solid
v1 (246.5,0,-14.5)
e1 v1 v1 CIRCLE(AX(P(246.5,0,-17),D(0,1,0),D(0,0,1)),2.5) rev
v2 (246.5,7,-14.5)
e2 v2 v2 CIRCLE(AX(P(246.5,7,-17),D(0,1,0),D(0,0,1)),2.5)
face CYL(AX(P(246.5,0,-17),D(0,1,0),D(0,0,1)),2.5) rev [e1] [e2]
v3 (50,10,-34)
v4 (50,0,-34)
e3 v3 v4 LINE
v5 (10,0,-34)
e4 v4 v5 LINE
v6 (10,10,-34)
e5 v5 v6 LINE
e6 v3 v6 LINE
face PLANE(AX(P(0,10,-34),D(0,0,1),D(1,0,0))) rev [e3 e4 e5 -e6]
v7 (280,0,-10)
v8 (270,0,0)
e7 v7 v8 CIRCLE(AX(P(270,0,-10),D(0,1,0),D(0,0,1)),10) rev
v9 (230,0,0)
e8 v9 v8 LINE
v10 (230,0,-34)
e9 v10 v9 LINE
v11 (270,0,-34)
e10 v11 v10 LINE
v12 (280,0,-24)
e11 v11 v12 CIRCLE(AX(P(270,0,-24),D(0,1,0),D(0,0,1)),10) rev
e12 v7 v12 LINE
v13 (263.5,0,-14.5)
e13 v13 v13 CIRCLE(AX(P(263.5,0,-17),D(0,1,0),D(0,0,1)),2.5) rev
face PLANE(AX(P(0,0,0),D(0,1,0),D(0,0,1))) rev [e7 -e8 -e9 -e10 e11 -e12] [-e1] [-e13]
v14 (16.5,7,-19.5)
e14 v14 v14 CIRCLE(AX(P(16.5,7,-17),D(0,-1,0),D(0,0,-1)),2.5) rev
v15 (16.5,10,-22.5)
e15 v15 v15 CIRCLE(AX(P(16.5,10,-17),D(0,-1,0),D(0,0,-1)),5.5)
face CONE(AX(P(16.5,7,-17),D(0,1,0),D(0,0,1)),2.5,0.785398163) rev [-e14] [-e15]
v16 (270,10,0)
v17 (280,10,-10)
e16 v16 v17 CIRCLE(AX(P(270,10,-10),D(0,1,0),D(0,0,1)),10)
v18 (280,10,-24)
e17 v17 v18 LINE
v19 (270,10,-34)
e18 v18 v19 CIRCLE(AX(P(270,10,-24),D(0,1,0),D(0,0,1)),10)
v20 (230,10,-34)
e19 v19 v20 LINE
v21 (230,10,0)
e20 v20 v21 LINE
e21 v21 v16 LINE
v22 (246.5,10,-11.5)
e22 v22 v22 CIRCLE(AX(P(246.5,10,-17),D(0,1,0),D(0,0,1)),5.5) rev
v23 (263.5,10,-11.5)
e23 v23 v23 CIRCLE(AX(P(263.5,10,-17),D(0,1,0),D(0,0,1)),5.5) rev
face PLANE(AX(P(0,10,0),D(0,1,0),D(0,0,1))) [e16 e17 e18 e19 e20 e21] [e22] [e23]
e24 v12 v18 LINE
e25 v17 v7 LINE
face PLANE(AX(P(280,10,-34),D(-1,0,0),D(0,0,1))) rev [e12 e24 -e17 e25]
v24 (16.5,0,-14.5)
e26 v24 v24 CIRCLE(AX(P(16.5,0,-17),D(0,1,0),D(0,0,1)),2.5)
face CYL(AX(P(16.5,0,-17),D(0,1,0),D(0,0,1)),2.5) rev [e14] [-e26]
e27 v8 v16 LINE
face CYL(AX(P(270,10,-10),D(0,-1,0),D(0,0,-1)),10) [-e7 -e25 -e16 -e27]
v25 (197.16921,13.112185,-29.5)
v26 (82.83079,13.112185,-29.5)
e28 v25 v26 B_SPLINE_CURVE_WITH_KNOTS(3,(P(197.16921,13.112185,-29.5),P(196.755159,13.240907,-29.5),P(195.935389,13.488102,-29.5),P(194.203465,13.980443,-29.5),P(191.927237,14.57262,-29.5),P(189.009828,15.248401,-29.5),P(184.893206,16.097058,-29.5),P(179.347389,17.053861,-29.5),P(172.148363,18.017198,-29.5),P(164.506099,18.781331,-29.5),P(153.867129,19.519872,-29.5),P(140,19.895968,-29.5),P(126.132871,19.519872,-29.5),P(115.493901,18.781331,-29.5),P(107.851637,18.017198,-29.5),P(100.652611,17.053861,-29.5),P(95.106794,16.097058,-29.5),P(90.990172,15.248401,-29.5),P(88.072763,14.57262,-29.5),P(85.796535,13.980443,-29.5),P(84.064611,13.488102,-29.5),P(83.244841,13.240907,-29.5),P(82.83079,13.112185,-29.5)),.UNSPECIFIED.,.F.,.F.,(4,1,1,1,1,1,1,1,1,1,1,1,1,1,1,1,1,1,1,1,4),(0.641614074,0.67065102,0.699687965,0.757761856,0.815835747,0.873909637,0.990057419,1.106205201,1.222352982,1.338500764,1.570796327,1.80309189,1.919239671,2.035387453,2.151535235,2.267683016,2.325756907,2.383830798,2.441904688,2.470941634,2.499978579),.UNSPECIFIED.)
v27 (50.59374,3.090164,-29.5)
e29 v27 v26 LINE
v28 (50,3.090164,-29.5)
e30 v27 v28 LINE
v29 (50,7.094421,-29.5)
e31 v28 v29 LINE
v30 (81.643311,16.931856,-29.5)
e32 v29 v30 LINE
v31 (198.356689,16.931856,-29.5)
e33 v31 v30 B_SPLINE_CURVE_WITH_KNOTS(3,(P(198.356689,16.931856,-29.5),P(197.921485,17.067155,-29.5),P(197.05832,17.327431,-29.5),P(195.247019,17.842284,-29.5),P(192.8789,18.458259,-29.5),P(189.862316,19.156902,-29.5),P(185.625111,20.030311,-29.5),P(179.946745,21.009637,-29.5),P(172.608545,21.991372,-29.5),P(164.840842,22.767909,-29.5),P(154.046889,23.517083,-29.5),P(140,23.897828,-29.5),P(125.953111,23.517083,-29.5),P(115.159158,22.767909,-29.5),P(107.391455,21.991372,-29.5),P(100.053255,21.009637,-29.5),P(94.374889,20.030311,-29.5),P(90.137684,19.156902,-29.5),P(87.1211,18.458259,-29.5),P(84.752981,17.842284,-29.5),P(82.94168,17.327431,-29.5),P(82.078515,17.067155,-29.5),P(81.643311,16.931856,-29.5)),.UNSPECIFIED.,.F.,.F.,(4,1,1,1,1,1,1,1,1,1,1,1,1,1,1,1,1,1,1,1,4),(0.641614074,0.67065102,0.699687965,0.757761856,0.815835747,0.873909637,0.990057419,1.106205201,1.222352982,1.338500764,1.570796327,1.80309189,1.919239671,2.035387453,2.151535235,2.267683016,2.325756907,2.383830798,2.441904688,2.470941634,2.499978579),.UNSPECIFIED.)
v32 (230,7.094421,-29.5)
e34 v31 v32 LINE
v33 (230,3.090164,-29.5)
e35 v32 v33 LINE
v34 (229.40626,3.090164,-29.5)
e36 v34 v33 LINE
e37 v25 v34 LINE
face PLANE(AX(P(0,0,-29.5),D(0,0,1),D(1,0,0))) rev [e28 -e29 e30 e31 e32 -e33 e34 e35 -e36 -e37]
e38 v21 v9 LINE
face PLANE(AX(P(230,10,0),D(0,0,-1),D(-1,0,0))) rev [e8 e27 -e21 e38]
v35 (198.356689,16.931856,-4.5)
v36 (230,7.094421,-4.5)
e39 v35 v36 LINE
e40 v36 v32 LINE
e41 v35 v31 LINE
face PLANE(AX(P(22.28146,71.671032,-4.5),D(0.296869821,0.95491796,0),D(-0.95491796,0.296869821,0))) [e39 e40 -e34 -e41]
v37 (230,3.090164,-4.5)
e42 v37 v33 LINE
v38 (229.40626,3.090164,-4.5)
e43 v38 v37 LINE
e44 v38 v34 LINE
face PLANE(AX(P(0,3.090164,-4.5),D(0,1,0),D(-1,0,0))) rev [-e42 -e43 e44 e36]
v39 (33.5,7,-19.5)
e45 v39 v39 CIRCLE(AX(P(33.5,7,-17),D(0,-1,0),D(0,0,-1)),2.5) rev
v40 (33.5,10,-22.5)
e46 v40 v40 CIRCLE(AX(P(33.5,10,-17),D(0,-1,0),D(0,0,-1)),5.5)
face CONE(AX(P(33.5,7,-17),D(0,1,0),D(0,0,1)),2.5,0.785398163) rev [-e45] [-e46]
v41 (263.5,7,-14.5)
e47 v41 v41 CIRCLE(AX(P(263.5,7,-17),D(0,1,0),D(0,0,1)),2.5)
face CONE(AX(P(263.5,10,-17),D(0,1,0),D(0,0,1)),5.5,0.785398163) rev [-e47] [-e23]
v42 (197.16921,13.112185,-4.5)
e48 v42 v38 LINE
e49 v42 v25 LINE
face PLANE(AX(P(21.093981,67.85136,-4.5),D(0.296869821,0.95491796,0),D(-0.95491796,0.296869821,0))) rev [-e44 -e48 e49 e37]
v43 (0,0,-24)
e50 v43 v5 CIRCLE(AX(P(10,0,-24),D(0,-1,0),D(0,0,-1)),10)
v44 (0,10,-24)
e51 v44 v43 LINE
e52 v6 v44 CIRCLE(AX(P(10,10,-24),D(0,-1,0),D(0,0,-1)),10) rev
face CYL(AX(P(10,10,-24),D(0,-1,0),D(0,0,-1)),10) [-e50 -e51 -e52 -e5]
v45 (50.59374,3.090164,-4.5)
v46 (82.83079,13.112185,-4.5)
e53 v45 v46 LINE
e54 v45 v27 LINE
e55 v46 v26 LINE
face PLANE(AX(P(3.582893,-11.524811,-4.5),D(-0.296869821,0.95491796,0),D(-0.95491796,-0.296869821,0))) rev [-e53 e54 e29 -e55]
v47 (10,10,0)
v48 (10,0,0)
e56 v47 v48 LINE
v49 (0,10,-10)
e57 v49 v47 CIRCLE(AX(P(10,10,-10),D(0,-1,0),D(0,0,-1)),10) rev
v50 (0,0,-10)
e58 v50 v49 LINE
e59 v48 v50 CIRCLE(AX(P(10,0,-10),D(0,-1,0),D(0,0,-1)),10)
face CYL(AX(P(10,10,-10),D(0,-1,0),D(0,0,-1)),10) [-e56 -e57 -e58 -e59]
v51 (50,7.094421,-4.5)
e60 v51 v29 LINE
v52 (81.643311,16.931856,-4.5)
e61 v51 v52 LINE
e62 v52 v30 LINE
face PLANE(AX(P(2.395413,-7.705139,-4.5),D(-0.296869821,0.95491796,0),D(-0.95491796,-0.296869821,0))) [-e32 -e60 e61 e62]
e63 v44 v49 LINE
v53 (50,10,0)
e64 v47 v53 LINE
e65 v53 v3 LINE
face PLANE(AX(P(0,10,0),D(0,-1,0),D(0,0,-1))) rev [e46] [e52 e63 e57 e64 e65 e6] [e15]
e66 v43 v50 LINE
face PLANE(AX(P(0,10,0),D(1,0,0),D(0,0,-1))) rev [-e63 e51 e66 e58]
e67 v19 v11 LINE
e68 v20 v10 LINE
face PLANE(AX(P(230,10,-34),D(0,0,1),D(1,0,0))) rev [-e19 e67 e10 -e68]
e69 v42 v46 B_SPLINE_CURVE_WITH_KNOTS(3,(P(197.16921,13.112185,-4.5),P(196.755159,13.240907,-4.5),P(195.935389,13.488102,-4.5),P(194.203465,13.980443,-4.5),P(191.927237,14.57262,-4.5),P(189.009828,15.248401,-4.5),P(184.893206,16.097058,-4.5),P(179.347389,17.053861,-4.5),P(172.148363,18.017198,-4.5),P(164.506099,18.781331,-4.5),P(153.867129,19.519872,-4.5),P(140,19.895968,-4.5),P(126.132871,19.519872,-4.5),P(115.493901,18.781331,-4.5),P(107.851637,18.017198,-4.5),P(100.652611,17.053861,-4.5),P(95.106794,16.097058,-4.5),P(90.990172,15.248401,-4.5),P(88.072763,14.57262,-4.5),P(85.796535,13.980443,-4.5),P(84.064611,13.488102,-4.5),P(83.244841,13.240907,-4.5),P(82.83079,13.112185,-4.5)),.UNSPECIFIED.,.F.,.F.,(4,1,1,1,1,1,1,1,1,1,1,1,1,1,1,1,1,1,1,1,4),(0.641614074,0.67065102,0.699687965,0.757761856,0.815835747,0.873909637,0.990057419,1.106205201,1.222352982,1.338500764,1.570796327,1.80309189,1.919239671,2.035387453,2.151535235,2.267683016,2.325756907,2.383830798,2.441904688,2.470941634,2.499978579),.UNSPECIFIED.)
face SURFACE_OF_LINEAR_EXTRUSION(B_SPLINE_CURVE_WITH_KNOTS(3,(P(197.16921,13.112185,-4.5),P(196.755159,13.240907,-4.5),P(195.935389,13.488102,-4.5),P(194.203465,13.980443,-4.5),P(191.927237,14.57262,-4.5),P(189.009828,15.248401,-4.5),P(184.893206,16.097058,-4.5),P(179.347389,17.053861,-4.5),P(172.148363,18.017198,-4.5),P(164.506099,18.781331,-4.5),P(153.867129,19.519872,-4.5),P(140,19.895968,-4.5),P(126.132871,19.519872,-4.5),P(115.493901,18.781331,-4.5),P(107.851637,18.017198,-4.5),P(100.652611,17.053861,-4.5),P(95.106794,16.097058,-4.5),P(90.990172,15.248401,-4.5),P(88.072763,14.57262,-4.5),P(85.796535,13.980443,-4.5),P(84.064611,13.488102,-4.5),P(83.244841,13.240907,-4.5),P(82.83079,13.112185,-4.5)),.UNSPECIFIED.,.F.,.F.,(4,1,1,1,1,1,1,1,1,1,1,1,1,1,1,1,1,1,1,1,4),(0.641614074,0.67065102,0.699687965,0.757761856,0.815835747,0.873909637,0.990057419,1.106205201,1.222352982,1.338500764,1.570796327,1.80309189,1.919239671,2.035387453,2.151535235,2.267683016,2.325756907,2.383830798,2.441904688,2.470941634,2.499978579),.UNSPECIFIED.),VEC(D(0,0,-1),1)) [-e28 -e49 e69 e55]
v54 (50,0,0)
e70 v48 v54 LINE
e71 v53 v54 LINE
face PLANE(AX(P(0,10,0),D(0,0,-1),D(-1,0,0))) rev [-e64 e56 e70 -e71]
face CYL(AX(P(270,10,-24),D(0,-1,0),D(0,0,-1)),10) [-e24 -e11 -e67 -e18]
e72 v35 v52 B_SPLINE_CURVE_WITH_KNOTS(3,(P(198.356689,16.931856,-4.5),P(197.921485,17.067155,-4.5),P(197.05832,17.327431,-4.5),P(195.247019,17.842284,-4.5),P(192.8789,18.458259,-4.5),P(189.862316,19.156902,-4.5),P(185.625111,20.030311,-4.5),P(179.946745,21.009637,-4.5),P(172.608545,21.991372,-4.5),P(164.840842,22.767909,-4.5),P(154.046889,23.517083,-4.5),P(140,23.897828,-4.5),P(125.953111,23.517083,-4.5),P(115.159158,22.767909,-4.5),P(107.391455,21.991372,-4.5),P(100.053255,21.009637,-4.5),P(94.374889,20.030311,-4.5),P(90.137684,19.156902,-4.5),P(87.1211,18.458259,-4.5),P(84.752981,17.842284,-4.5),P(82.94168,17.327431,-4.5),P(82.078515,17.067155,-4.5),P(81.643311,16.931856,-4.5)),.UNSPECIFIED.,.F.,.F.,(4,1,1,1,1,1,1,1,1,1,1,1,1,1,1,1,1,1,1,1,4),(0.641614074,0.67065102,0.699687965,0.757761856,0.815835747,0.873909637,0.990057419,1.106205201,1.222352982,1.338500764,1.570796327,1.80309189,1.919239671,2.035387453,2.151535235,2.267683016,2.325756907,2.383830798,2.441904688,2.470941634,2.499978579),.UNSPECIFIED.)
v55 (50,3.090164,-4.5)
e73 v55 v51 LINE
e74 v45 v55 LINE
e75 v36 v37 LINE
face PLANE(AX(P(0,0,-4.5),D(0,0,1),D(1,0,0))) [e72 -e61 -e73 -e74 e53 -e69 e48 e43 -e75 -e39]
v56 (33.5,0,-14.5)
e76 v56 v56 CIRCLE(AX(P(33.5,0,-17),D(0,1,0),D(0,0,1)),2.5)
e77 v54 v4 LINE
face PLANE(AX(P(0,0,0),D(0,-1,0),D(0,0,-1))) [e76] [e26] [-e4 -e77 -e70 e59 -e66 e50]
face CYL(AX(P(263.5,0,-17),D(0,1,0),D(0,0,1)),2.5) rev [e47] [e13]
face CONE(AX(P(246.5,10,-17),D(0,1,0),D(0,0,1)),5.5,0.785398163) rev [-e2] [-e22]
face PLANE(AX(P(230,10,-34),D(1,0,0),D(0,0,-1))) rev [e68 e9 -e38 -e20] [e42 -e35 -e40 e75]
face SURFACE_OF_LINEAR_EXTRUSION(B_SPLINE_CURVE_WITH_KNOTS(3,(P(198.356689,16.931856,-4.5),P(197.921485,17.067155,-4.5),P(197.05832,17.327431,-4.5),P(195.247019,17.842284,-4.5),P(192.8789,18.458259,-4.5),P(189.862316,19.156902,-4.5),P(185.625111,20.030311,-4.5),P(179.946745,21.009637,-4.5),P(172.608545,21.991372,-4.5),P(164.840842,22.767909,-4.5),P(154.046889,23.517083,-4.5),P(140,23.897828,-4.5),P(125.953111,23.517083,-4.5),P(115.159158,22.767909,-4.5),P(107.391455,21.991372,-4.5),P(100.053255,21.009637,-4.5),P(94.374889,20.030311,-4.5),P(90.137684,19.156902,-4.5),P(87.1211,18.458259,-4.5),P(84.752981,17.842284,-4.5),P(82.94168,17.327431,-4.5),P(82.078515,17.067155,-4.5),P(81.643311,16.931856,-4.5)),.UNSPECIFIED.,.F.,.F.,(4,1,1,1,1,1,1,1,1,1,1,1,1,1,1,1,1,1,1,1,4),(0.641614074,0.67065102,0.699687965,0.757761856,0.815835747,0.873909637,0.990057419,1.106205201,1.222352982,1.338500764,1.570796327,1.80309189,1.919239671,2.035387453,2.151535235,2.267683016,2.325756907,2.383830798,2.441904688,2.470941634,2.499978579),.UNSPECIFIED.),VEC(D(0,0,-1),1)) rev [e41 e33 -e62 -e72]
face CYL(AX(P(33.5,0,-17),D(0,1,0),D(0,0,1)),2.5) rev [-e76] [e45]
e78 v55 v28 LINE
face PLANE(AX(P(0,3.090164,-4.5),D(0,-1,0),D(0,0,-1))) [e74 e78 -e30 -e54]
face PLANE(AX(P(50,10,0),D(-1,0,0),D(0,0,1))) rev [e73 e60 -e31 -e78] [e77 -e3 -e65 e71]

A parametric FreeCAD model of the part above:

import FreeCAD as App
import Part
import Sketcher


def edges_at(feature, points):
    """Names of the edges that pass closest to the given points."""
    edges = feature.Shape.Edges
    near = lambda p: min(range(len(edges)), key=lambda i: edges[i].distToShape(Part.Vertex(*p))[0])
    return sorted({f"Edge{near(p) + 1}" for p in points})


def add_polygon(sketch, points):
    """Adds a closed chain of lines whose ends are joined by coincident constraints."""
    first, n = sketch.GeometryCount, len(points)
    for a, b in zip(points, points[1:] + points[:1]):
        sketch.addGeometry(Part.LineSegment(App.Vector(*a, 0), App.Vector(*b, 0)), False)
    for i in range(n):
        sketch.addConstraint(Sketcher.Constraint("Coincident", first + i, 2, first + (i + 1) % n, 1))

doc = App.newDocument("Part")
body = doc.addObject("PartDesign::Body", "Body")

# Sketch on XZ plane
sketch1 = doc.addObject("Sketcher::SketchObject", "Sketch")
body.addObject(sketch1)
sketch1.AttachmentSupport = (doc.XZ_Plane, [""])
sketch1.MapMode = "FlatFace"
add_polygon(sketch1, [(0, -34), (0, 0), (50, 0), (50, -34)])  # lines 0-3
sketch1.addConstraint(Sketcher.Constraint("Vertical", 0))
sketch1.addConstraint(Sketcher.Constraint("Horizontal", 1))
sketch1.addConstraint(Sketcher.Constraint("Vertical", 2))
sketch1.addConstraint(Sketcher.Constraint("Horizontal", 3))
sketch1.addConstraint(Sketcher.Constraint("Coincident", 0, 2, -1, 1))
sketch1.addConstraint(Sketcher.Constraint("DistanceX", 1, 1, 1, 2, 50.0))
sketch1.addConstraint(Sketcher.Constraint("DistanceY", 0, 1, 0, 2, 34.0))
pad1 = doc.addObject("PartDesign::Pad", "Pad")
body.addObject(pad1)
pad1.Profile = sketch1
pad1.Length = 10
pad1.Reversed = True
doc.recompute()

fillet = doc.addObject("PartDesign::Fillet", "Fillet")
body.addObject(fillet)
fillet.Base = (pad1, edges_at(pad1, [(0, 5, -34), (0, 5, 0)]))
fillet.Radius = 10
body2 = doc.addObject("PartDesign::Body", "Body001")

# Sketch on XZ plane
sketch2 = doc.addObject("Sketcher::SketchObject", "Sketch001")
body2.addObject(sketch2)
sketch2.AttachmentSupport = (doc.getObject("XZ_Plane001"), [""])
sketch2.MapMode = "FlatFace"
add_polygon(sketch2, [(230, -34), (230, 0), (280, 0), (280, -34)])  # lines 0-3
sketch2.addConstraint(Sketcher.Constraint("Vertical", 0))
sketch2.addConstraint(Sketcher.Constraint("Horizontal", 1))
sketch2.addConstraint(Sketcher.Constraint("Vertical", 2))
sketch2.addConstraint(Sketcher.Constraint("Horizontal", 3))
sketch2.addConstraint(Sketcher.Constraint("PointOnObject", 0, 2, -1))
sketch2.addConstraint(Sketcher.Constraint("DistanceX", 1, 1, 1, 2, 50.0))
sketch2.addConstraint(Sketcher.Constraint("DistanceY", 0, 1, 0, 2, 34.0))
sketch2.addConstraint(Sketcher.Constraint("DistanceX", -1, 1, 0, 2, 230.0))
pad2 = doc.addObject("PartDesign::Pad", "Pad001")
body2.addObject(pad2)
pad2.Profile = sketch2
pad2.Length = 10
pad2.Reversed = True
doc.recompute()

fillet2 = doc.addObject("PartDesign::Fillet", "Fillet001")
body2.addObject(fillet2)
fillet2.Base = (pad2, edges_at(pad2, [(280, 5, -34), (280, 5, 0)]))
fillet2.Radius = 10
body.AllowCompound = True
doc.recompute()

boolean = doc.addObject("PartDesign::Boolean", "Boolean")
body.addObject(boolean)
boolean.Type = "Fuse"
boolean.addObjects([body2])

# Sketch on XY plane
sketch3 = doc.addObject("Sketcher::SketchObject", "Sketch002")
body.addObject(sketch3)
sketch3.AttachmentSupport = (doc.XY_Plane, [""])
sketch3.MapMode = "FlatFace"
sketch3.AttachmentOffset = App.Placement(App.Vector(0, 0, -17), App.Rotation())
sketch3.addGeometry(Part.LineSegment(App.Vector(230, 7.094421, 0), App.Vector(198.356689, 16.931856, 0)), False)
sketch3.addGeometry(Part.BSplineCurve([App.Vector(198.356689, 16.931856, 0), App.Vector(197.921485, 17.067155, 0), App.Vector(197.05832, 17.327431, 0), App.Vector(195.247019, 17.842284, 0), App.Vector(192.8789, 18.458259, 0), App.Vector(189.862316, 19.156902, 0), App.Vector(185.625111, 20.030311, 0), App.Vector(179.946745, 21.009637, 0), App.Vector(172.608545, 21.991372, 0), App.Vector(164.840842, 22.767909, 0), App.Vector(154.046889, 23.517083, 0), App.Vector(140, 23.897828, 0), App.Vector(125.953111, 23.517083, 0), App.Vector(115.159158, 22.767909, 0), App.Vector(107.391455, 21.991372, 0), App.Vector(100.053255, 21.009637, 0), App.Vector(94.374889, 20.030311, 0), App.Vector(90.137684, 19.156902, 0), App.Vector(87.1211, 18.458259, 0), App.Vector(84.752981, 17.842284, 0), App.Vector(82.94168, 17.327431, 0), App.Vector(82.078515, 17.067155, 0), App.Vector(81.643311, 16.931856, 0)], [4, 1, 1, 1, 1, 1, 1, 1, 1, 1, 1, 1, 1, 1, 1, 1, 1, 1, 1, 1, 4], [0.641614074, 0.67065102, 0.699687965, 0.757761856, 0.815835747, 0.873909637, 0.990057419, 1.106205201, 1.222352982, 1.338500764, 1.570796327, 1.80309189, 1.919239671, 2.035387453, 2.151535235, 2.267683016, 2.325756907, 2.383830798, 2.441904688, 2.470941634, 2.499978579], False, 3, [1, 1, 1, 1, 1, 1, 1, 1, 1, 1, 1, 1, 1, 1, 1, 1, 1, 1, 1, 1, 1, 1, 1], False), False)
sketch3.addGeometry(Part.LineSegment(App.Vector(81.643311, 16.931856, 0), App.Vector(50, 7.094421, 0)), False)
sketch3.addGeometry(Part.LineSegment(App.Vector(50, 7.094421, 0), App.Vector(50, 3.090164, 0)), False)
sketch3.addGeometry(Part.LineSegment(App.Vector(50, 3.090164, 0), App.Vector(50.59374, 3.090164, 0)), False)
sketch3.addGeometry(Part.LineSegment(App.Vector(50.59374, 3.090164, 0), App.Vector(82.83079, 13.112185, 0)), False)
sketch3.addGeometry(Part.BSplineCurve([App.Vector(197.16921, 13.112185, 0), App.Vector(196.755159, 13.240907, 0), App.Vector(195.935389, 13.488102, 0), App.Vector(194.203465, 13.980443, 0), App.Vector(191.927237, 14.57262, 0), App.Vector(189.009828, 15.248401, 0), App.Vector(184.893206, 16.097058, 0), App.Vector(179.347389, 17.053861, 0), App.Vector(172.148363, 18.017198, 0), App.Vector(164.506099, 18.781331, 0), App.Vector(153.867129, 19.519872, 0), App.Vector(140, 19.895968, 0), App.Vector(126.132871, 19.519872, 0), App.Vector(115.493901, 18.781331, 0), App.Vector(107.851637, 18.017198, 0), App.Vector(100.652611, 17.053861, 0), App.Vector(95.106794, 16.097058, 0), App.Vector(90.990172, 15.248401, 0), App.Vector(88.072763, 14.57262, 0), App.Vector(85.796535, 13.980443, 0), App.Vector(84.064611, 13.488102, 0), App.Vector(83.244841, 13.240907, 0), App.Vector(82.83079, 13.112185, 0)], [4, 1, 1, 1, 1, 1, 1, 1, 1, 1, 1, 1, 1, 1, 1, 1, 1, 1, 1, 1, 4], [0.641614074, 0.67065102, 0.699687965, 0.757761856, 0.815835747, 0.873909637, 0.990057419, 1.106205201, 1.222352982, 1.338500764, 1.570796327, 1.80309189, 1.919239671, 2.035387453, 2.151535235, 2.267683016, 2.325756907, 2.383830798, 2.441904688, 2.470941634, 2.499978579], False, 3, [1, 1, 1, 1, 1, 1, 1, 1, 1, 1, 1, 1, 1, 1, 1, 1, 1, 1, 1, 1, 1, 1, 1], False), False)
sketch3.addGeometry(Part.LineSegment(App.Vector(197.16921, 13.112185, 0), App.Vector(229.40626, 3.090164, 0)), False)
sketch3.addGeometry(Part.LineSegment(App.Vector(229.40626, 3.090164, 0), App.Vector(230, 3.090164, 0)), False)
sketch3.addGeometry(Part.LineSegment(App.Vector(230, 3.090164, 0), App.Vector(230, 7.094421, 0)), False)
sketch3.addConstraint(Sketcher.Constraint("Block", 1))
sketch3.addConstraint(Sketcher.Constraint("Block", 6))
sketch3.addConstraint(Sketcher.Constraint("Coincident", 0, 2, 1, 1))
sketch3.addConstraint(Sketcher.Constraint("Coincident", 1, 2, 2, 1))
sketch3.addConstraint(Sketcher.Constraint("Coincident", 2, 2, 3, 1))
sketch3.addConstraint(Sketcher.Constraint("Coincident", 3, 2, 4, 1))
sketch3.addConstraint(Sketcher.Constraint("Coincident", 4, 2, 5, 1))
sketch3.addConstraint(Sketcher.Constraint("Coincident", 5, 2, 6, 2))
sketch3.addConstraint(Sketcher.Constraint("Coincident", 6, 1, 7, 1))
sketch3.addConstraint(Sketcher.Constraint("Coincident", 7, 2, 8, 1))
sketch3.addConstraint(Sketcher.Constraint("Coincident", 8, 2, 9, 1))
sketch3.addConstraint(Sketcher.Constraint("Coincident", 9, 2, 0, 1))
sketch3.addConstraint(Sketcher.Constraint("Vertical", 3))
sketch3.addConstraint(Sketcher.Constraint("Horizontal", 4))
sketch3.addConstraint(Sketcher.Constraint("Horizontal", 8))
sketch3.addConstraint(Sketcher.Constraint("Vertical", 9))
sketch3.addConstraint(Sketcher.Constraint("DistanceX", -1, 1, 2, 2, 50.0))
sketch3.addConstraint(Sketcher.Constraint("DistanceX", -1, 1, 8, 2, 230.0))
sketch3.addConstraint(Sketcher.Constraint("DistanceX", 4, 1, 4, 2, 0.59374))
sketch3.addConstraint(Sketcher.Constraint("DistanceX", 8, 1, 8, 2, 0.59374))
sketch3.addConstraint(Sketcher.Constraint("DistanceY", 3, 2, 3, 1, 4.004257))
sketch3.addConstraint(Sketcher.Constraint("DistanceY", 9, 1, 9, 2, 4.004257))
sketch3.addConstraint(Sketcher.Constraint("DistanceY", -1, 1, 2, 2, 7.094421))
sketch3.addConstraint(Sketcher.Constraint("DistanceY", -1, 1, 9, 2, 7.094421))
pad3 = doc.addObject("PartDesign::Pad", "Pad002")
body.addObject(pad3)
pad3.Profile = sketch3
pad3.Length = 25
pad3.Midplane = True

# Sketch on XZ plane
sketch4 = doc.addObject("Sketcher::SketchObject", "Sketch003")
body.addObject(sketch4)
sketch4.AttachmentSupport = (doc.XZ_Plane, [""])
sketch4.MapMode = "FlatFace"
sketch4.AttachmentOffset = App.Placement(App.Vector(0, 0, -10), App.Rotation())
sketch4.addGeometry(Part.Circle(App.Vector(16.5, -17, 0), App.Vector(0, 0, 1), 2.5), False)
sketch4.addGeometry(Part.Circle(App.Vector(33.5, -17, 0), App.Vector(0, 0, 1), 2.5), False)
sketch4.addGeometry(Part.Circle(App.Vector(246.5, -17, 0), App.Vector(0, 0, 1), 2.5), False)
sketch4.addGeometry(Part.Circle(App.Vector(263.5, -17, 0), App.Vector(0, 0, 1), 2.5), False)
sketch4.addConstraint(Sketcher.Constraint("Equal", 0, 1))
sketch4.addConstraint(Sketcher.Constraint("Equal", 1, 2))
sketch4.addConstraint(Sketcher.Constraint("Equal", 2, 3))
sketch4.addConstraint(Sketcher.Constraint("Horizontal", 0, 3, 1, 3))
sketch4.addConstraint(Sketcher.Constraint("Horizontal", 1, 3, 2, 3))
sketch4.addConstraint(Sketcher.Constraint("Horizontal", 2, 3, 3, 3))
sketch4.addConstraint(Sketcher.Constraint("Diameter", 0, 5.0))
sketch4.addConstraint(Sketcher.Constraint("DistanceY", 0, 3, -1, 1, 17.0))
sketch4.addConstraint(Sketcher.Constraint("DistanceX", 0, 3, 1, 3, 17.0))
sketch4.addConstraint(Sketcher.Constraint("DistanceX", 1, 3, 2, 3, 213.0))
sketch4.addConstraint(Sketcher.Constraint("DistanceX", 2, 3, 3, 3, 17.0))
sketch4.addConstraint(Sketcher.Constraint("DistanceX", -1, 1, 0, 3, 16.5))
pocket1 = doc.addObject("PartDesign::Pocket", "Pocket")
body.addObject(pocket1)
pocket1.Profile = sketch4
pocket1.Type = "ThroughAll"
pocket1.Reversed = True
doc.recompute()

chamfer = doc.addObject("PartDesign::Chamfer", "Chamfer")
body.addObject(chamfer)
chamfer.Base = (pocket1, edges_at(pocket1, [
    (16.5, 10, -19.5),
    (33.5, 10, -19.5),
    (246.5, 10, -19.5),
    (263.5, 10, -19.5),
]))
chamfer.Size = 3

doc.recompute()
